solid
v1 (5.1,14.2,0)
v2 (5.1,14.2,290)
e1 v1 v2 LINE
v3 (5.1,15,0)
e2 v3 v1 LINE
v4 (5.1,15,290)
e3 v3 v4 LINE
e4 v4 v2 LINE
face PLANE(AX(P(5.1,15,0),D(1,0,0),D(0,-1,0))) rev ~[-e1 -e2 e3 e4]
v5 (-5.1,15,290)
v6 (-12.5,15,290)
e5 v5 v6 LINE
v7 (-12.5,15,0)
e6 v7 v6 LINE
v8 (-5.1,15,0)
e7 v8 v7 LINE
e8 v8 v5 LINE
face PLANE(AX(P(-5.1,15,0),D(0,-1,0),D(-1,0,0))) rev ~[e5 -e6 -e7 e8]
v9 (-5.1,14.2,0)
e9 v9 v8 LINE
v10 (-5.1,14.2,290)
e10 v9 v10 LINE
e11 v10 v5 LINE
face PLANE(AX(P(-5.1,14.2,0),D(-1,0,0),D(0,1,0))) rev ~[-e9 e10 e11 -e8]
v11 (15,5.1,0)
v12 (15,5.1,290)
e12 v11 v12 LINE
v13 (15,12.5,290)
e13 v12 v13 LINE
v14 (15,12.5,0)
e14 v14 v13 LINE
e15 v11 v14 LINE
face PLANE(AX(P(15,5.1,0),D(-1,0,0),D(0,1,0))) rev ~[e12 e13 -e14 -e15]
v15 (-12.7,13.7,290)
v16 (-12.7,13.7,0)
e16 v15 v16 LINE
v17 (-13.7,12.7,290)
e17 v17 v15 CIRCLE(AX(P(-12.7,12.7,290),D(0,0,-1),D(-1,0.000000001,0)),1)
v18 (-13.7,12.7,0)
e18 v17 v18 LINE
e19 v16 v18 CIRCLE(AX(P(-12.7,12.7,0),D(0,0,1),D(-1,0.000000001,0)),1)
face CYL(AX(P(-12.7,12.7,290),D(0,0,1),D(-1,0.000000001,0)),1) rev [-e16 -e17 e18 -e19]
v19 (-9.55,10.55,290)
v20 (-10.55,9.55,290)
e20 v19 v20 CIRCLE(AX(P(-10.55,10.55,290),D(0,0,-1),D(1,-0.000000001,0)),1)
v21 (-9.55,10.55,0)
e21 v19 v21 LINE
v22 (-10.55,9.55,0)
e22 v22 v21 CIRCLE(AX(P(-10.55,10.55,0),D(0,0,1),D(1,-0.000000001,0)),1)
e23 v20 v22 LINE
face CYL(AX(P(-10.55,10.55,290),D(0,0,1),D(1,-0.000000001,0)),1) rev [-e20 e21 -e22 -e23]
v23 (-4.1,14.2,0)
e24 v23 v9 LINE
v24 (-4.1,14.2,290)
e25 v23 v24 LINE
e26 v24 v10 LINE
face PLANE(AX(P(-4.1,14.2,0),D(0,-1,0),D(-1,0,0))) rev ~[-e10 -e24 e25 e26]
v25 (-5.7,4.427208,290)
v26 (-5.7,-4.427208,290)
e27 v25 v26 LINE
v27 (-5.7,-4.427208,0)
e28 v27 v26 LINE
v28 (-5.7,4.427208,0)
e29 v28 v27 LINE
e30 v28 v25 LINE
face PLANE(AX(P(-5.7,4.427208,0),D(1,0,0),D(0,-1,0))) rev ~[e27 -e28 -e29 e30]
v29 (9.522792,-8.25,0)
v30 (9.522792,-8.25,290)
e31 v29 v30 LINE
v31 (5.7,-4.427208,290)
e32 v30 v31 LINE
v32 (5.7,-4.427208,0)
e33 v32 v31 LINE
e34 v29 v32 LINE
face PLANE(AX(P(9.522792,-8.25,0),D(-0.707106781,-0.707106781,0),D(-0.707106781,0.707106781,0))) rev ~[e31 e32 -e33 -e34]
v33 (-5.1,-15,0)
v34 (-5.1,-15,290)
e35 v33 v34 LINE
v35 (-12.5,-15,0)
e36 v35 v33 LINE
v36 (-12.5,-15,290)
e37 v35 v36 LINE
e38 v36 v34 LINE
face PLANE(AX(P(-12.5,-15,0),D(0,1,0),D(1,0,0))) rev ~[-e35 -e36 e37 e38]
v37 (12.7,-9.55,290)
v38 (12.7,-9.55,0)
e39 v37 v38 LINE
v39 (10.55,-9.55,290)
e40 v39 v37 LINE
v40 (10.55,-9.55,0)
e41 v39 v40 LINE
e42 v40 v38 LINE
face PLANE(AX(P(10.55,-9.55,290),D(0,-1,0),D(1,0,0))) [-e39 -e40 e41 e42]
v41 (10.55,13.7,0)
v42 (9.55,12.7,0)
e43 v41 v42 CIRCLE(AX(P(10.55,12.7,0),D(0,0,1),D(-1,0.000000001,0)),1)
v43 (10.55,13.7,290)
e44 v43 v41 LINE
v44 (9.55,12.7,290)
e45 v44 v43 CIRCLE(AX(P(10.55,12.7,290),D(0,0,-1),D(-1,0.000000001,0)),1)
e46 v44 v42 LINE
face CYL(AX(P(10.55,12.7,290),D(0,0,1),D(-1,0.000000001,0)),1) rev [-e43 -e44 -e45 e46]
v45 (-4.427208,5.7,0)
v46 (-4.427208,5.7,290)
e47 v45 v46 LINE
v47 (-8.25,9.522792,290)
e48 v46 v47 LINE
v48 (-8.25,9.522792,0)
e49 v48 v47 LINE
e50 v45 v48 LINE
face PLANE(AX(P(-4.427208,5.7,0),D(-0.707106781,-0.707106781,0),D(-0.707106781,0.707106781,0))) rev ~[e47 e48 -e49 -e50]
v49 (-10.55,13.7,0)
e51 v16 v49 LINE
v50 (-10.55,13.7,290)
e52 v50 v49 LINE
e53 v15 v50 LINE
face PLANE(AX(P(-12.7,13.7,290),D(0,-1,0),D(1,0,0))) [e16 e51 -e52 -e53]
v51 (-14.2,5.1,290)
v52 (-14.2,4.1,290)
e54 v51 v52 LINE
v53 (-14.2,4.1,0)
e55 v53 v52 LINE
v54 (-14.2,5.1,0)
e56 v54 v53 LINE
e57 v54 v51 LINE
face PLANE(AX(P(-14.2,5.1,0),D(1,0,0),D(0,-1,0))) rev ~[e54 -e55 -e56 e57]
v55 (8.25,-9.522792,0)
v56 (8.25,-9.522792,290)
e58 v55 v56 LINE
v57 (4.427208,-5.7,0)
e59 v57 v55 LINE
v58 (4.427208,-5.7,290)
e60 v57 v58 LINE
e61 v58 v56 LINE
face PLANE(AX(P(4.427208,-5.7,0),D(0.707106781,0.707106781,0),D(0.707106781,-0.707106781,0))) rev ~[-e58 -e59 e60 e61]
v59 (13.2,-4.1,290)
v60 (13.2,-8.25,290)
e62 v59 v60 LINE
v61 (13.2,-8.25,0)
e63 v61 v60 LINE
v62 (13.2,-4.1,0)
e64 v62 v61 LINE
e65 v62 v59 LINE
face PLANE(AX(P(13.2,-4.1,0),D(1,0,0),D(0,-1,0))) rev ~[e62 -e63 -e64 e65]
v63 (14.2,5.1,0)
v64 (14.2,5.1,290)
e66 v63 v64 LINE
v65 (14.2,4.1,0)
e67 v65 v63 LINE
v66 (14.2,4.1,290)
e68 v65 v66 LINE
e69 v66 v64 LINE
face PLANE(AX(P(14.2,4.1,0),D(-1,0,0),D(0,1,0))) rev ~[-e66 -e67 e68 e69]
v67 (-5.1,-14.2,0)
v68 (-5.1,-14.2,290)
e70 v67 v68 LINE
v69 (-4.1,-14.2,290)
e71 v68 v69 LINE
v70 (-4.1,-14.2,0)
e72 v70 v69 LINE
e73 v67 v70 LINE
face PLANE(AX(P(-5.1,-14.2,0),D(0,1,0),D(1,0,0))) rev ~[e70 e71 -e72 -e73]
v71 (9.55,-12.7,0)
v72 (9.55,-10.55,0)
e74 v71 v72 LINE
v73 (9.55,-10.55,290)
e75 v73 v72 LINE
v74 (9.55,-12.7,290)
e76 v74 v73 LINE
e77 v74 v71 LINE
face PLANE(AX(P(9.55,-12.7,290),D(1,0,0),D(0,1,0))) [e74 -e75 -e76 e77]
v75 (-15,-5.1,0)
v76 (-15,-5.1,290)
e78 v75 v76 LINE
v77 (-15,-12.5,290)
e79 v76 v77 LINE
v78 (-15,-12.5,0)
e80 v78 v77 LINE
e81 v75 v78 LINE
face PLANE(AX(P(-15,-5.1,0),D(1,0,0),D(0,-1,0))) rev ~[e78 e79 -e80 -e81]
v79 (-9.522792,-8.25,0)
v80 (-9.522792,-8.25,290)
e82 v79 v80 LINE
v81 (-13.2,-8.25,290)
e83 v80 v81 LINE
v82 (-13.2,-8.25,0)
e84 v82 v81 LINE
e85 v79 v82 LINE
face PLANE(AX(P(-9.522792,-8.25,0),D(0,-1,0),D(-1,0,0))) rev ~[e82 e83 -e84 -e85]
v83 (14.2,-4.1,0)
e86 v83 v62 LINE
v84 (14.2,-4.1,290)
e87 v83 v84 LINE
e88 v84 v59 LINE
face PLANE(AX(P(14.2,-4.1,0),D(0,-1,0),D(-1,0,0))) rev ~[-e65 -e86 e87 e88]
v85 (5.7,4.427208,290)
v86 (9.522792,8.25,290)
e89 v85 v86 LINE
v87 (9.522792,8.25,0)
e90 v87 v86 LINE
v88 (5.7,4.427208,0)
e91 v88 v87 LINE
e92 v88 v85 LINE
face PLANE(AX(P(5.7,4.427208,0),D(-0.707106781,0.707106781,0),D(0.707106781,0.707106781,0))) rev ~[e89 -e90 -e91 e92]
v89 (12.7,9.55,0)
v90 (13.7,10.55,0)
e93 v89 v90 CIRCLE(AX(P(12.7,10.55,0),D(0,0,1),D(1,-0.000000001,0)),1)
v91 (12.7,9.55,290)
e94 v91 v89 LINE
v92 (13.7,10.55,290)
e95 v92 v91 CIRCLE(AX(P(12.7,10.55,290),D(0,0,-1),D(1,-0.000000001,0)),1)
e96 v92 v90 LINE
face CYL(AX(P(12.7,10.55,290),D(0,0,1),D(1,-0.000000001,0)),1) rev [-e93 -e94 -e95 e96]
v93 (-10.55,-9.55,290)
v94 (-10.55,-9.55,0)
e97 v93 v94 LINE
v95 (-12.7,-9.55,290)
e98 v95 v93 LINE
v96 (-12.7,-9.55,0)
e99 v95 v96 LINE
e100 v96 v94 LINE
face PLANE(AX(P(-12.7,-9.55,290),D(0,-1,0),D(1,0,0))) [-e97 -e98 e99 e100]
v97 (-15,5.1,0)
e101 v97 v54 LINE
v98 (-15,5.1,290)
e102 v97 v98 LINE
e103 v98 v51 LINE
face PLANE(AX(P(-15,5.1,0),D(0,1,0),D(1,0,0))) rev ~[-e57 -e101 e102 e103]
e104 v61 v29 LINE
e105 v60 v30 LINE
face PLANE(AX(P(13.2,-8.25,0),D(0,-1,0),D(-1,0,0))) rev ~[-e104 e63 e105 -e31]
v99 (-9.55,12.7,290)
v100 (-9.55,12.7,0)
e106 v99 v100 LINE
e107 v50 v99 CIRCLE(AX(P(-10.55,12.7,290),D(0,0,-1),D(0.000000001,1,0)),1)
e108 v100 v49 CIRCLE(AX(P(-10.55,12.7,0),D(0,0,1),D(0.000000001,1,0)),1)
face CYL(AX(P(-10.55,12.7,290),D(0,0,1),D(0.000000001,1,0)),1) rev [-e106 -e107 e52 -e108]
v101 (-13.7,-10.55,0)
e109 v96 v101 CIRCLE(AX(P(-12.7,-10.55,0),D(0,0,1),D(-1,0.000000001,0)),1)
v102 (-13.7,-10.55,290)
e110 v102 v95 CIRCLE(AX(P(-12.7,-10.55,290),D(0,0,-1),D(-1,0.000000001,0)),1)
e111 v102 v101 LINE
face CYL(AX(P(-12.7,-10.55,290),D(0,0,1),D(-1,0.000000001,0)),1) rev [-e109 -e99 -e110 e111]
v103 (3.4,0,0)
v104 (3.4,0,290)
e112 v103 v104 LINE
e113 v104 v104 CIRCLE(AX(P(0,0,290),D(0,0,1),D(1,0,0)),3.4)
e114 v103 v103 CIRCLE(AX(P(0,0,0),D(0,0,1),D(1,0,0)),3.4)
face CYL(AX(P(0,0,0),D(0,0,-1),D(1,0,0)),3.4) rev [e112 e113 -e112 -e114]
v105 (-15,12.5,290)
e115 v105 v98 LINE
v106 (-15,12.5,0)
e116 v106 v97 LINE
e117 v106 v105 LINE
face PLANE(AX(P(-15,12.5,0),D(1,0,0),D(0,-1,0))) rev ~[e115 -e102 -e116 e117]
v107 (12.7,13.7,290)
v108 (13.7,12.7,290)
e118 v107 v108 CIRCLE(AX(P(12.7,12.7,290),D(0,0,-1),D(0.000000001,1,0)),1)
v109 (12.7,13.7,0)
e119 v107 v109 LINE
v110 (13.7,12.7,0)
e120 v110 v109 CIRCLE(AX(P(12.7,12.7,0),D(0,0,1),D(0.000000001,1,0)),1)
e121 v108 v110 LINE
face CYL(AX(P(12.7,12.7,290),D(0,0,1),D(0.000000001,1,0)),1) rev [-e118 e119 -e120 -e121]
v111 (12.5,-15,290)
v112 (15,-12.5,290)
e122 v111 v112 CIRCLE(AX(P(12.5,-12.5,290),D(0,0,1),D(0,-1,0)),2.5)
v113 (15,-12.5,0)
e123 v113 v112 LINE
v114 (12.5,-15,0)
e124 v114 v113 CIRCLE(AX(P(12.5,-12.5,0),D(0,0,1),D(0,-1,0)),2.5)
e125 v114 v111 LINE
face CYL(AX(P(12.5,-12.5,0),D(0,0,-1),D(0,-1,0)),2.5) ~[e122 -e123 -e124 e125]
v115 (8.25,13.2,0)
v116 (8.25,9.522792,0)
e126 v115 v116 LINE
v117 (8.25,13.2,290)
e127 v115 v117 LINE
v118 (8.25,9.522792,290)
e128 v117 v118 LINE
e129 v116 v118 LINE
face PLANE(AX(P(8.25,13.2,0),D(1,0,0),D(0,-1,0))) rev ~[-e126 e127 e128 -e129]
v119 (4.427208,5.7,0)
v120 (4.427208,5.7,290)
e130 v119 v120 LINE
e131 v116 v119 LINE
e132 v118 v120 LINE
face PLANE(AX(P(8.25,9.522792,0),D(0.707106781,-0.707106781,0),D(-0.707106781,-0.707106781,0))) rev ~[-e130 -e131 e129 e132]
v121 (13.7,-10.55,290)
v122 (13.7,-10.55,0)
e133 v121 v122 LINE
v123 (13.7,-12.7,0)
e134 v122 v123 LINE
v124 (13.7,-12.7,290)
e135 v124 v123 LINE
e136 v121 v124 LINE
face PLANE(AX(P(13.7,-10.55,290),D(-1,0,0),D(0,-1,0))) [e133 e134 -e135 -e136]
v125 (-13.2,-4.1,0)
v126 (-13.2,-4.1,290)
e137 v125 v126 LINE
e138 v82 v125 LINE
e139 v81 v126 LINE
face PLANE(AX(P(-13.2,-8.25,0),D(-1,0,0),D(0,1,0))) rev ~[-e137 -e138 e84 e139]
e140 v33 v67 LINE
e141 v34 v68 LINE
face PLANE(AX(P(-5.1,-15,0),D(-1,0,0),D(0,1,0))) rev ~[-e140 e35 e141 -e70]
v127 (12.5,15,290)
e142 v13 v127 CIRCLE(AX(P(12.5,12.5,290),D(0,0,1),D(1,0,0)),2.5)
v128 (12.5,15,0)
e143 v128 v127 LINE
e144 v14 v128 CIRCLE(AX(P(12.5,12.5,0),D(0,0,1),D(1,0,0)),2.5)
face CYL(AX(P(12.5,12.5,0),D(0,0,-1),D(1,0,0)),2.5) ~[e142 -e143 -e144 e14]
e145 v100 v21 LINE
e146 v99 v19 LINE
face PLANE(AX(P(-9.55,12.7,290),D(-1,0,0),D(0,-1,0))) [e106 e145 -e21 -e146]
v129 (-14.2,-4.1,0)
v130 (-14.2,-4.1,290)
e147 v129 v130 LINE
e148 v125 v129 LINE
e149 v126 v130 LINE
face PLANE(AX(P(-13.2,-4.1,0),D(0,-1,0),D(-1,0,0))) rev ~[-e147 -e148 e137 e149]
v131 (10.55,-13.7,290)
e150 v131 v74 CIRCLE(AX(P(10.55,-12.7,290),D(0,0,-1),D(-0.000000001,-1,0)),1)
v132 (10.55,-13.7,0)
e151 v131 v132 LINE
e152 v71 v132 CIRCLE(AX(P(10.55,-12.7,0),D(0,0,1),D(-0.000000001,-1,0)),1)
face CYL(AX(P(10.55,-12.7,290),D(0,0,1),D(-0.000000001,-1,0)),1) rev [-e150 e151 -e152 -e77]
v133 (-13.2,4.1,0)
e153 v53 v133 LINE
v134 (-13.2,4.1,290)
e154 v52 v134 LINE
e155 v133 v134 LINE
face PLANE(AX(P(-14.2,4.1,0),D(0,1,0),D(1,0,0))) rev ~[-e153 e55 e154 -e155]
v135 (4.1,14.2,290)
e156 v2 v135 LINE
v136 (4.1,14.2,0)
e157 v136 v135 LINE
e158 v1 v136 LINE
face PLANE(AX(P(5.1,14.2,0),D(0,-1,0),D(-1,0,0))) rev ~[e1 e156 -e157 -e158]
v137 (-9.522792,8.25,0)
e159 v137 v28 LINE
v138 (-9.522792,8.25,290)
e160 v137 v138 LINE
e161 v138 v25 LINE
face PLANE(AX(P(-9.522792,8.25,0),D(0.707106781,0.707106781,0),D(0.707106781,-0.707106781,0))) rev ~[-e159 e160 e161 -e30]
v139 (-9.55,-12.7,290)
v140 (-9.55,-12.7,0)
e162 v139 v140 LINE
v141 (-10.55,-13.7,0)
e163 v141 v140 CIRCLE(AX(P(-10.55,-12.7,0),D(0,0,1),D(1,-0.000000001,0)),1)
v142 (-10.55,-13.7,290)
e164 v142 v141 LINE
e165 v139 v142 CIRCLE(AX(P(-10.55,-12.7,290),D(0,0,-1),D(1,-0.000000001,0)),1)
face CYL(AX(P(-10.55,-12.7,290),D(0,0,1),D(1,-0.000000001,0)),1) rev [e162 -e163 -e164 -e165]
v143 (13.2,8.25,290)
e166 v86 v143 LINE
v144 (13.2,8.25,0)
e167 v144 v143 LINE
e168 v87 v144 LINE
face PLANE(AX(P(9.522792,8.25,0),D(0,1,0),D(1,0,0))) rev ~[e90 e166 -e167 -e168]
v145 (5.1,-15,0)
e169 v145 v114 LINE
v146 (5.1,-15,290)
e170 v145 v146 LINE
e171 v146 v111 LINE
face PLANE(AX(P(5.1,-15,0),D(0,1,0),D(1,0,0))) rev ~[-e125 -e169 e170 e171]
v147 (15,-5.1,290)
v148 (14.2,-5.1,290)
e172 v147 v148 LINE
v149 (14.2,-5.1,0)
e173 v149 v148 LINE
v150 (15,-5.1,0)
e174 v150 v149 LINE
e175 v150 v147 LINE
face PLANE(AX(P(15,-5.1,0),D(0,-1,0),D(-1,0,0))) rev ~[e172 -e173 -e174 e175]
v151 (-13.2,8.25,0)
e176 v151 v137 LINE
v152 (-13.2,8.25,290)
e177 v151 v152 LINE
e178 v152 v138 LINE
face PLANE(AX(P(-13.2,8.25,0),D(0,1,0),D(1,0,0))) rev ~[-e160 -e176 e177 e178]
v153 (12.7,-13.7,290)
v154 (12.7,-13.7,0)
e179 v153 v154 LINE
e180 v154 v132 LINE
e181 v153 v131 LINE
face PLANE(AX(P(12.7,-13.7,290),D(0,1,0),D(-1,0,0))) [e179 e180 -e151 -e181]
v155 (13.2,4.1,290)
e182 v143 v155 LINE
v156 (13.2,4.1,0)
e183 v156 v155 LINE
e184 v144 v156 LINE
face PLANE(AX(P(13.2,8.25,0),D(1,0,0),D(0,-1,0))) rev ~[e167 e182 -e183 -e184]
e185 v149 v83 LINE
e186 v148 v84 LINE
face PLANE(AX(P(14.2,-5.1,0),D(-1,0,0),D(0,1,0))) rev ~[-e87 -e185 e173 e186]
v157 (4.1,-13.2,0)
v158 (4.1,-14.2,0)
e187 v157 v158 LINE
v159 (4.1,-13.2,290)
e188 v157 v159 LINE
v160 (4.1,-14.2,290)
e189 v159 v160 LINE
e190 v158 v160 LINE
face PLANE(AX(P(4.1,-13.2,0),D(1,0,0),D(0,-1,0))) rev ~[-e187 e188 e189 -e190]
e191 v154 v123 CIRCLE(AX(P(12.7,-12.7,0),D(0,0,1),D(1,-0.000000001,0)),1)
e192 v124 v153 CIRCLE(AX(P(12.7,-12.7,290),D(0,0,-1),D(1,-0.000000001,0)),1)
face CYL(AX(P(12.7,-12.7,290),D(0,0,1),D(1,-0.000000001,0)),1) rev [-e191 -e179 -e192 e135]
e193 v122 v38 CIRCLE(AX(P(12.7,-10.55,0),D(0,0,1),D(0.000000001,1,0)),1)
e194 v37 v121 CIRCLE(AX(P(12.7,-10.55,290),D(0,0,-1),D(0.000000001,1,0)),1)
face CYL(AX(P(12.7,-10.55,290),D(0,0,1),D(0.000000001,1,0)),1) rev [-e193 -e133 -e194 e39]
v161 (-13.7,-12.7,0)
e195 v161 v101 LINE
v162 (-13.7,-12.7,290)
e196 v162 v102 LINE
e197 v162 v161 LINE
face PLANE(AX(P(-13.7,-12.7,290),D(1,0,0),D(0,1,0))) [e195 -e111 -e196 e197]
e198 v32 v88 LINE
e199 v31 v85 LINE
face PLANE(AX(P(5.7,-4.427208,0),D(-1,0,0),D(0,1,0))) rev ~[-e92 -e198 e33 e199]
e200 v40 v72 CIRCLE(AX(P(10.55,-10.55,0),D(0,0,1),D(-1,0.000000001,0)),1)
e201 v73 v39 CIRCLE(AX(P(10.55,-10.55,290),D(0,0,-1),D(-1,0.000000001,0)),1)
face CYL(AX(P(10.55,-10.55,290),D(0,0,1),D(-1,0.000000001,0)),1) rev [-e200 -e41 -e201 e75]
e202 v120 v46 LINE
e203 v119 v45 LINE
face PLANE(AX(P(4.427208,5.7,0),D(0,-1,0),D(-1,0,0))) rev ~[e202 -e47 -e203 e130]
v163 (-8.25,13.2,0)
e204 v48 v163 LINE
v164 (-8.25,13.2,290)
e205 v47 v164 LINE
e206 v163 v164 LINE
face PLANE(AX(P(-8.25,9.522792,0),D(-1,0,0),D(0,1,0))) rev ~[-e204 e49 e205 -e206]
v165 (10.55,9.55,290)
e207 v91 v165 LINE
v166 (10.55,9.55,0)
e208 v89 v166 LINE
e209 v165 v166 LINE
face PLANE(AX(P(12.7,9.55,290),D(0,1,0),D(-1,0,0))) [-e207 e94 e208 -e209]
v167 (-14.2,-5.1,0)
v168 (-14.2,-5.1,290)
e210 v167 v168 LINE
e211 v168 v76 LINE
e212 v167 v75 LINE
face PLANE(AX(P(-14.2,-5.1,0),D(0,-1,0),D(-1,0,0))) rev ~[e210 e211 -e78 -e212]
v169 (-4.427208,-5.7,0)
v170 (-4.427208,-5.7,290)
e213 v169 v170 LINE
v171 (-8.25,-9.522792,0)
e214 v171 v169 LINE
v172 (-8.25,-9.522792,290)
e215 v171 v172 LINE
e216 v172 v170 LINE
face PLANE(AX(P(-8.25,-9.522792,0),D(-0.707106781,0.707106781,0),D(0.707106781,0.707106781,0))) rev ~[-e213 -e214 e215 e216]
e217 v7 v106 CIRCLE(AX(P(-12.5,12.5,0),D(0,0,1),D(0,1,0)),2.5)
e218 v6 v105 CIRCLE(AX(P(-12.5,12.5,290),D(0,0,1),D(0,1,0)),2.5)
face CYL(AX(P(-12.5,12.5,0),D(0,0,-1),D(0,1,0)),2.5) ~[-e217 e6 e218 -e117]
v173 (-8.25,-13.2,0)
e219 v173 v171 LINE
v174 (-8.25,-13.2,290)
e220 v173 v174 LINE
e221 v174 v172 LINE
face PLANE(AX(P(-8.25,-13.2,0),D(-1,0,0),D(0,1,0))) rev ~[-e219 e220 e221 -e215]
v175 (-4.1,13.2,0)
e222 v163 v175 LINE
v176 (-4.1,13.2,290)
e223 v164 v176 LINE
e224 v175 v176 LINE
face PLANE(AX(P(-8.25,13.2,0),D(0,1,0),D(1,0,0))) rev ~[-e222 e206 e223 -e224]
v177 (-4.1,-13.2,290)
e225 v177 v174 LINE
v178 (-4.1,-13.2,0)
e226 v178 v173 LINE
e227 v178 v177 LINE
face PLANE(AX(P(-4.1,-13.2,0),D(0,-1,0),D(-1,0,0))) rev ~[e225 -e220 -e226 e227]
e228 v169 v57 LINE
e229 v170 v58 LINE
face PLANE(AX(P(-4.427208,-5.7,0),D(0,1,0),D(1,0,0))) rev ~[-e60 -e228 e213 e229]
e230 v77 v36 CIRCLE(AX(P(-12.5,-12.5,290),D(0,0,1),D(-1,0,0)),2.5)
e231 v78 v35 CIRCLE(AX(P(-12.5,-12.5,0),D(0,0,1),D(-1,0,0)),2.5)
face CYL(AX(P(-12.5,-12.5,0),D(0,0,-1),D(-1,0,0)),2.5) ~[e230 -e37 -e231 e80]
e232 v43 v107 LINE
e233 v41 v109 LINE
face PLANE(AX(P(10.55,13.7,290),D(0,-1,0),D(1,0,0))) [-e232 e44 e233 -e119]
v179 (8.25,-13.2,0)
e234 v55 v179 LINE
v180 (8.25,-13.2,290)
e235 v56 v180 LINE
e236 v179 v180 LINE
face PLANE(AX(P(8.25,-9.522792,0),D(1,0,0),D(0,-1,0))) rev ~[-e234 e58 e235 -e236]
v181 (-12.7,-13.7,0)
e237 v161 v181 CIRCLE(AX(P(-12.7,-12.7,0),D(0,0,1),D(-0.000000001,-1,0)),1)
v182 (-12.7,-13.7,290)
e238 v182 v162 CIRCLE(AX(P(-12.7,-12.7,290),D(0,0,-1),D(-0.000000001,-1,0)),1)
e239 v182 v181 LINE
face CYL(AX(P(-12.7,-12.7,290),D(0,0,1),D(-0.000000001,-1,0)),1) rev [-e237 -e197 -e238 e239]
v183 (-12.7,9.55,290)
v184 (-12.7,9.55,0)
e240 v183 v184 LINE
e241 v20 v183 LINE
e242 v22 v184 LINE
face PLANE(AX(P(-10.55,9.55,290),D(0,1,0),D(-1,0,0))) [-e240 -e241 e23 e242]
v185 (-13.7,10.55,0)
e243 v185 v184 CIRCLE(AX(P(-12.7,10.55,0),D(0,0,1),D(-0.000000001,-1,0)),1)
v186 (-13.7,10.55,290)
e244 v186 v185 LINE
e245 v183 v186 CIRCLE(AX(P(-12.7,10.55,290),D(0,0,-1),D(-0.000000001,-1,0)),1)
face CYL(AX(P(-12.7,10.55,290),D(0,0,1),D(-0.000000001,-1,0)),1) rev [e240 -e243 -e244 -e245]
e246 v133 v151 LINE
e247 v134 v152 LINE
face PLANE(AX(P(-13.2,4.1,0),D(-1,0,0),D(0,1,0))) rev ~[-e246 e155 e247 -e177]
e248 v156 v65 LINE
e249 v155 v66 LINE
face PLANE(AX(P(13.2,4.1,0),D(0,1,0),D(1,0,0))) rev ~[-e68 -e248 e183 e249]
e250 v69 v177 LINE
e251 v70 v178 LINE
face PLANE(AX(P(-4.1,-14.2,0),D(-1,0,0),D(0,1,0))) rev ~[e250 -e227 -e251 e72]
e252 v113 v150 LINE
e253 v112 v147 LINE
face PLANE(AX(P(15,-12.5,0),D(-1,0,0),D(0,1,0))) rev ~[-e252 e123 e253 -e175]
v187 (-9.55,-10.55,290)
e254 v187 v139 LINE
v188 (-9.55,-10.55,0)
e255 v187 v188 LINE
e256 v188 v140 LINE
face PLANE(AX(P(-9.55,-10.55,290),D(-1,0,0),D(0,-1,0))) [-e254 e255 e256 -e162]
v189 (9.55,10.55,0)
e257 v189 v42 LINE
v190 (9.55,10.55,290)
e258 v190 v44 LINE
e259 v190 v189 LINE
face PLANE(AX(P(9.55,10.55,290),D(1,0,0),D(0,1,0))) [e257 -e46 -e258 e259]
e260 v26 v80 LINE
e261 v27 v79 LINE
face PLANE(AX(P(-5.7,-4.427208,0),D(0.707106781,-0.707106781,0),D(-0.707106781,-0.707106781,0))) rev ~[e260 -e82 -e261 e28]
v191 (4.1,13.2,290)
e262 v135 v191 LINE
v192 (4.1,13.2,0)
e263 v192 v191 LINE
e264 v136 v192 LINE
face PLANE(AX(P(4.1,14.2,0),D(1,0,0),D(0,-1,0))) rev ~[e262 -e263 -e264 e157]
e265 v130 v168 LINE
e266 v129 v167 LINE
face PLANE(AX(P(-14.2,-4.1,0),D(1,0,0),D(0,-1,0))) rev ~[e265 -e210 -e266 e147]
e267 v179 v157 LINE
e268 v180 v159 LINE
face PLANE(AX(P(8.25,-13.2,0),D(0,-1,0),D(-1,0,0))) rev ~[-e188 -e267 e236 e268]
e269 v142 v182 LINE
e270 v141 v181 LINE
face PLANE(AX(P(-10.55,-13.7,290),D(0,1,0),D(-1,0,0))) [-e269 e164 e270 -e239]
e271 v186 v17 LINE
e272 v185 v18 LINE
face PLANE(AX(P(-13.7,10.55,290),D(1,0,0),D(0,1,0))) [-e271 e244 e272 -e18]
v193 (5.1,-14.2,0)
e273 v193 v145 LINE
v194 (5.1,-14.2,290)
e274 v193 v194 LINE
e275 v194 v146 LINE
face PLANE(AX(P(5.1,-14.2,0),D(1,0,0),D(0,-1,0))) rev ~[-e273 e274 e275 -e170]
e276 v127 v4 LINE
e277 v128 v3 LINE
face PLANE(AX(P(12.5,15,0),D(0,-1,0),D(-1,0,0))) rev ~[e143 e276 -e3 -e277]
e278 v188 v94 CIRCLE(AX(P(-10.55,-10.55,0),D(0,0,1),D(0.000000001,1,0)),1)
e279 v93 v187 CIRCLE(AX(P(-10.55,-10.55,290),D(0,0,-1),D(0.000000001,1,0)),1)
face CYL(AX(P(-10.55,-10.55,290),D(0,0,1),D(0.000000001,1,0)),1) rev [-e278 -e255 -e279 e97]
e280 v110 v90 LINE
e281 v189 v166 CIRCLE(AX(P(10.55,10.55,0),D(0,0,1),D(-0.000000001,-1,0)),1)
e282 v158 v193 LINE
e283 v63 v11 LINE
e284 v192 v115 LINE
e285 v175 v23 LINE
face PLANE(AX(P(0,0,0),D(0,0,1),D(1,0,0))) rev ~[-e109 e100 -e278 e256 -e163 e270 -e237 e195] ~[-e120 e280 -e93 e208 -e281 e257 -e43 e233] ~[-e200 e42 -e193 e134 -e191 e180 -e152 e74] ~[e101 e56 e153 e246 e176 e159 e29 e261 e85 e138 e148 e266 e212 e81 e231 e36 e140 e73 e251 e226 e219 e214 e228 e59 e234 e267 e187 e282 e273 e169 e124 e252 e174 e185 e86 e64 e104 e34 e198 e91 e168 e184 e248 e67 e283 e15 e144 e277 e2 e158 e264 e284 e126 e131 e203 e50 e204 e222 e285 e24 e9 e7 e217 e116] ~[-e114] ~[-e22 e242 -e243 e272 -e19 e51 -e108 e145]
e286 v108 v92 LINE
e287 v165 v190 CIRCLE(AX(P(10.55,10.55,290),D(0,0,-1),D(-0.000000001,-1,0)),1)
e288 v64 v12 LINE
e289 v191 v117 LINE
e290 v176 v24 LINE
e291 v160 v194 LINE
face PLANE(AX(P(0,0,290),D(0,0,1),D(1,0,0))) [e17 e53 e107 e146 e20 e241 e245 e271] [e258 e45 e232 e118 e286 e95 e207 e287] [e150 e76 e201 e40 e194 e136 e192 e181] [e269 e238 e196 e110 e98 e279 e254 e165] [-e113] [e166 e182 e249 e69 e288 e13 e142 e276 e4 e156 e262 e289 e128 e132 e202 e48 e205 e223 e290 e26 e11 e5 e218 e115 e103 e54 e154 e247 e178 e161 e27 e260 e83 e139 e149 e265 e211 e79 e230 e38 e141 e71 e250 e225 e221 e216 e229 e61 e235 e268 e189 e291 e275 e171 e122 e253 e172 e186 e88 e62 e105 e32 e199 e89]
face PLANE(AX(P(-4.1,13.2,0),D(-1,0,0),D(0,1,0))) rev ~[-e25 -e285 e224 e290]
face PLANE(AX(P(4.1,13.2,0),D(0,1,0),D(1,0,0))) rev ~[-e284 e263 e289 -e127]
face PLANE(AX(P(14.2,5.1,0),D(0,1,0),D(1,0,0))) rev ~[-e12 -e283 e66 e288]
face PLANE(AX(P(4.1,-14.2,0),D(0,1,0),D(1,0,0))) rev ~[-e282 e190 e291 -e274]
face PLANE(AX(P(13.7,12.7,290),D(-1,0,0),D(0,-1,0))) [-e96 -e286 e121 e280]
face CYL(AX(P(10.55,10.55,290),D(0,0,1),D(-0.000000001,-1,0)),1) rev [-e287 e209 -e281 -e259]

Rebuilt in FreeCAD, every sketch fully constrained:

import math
import FreeCAD as App
import Part
import Sketcher
from FreeCAD import Vector

doc = App.newDocument("Part")
params = doc.addObject("Spreadsheet::Sheet", "Params")
for row, (alias, value) in enumerate([
    ("sketch1_diameter", "6.8 mm"),
    ("sketch1_radius", "2.5 mm"),
    ("sketch1_width", "1 mm"),
    ("sketch1_width2", "7.4 mm"),
    ("sketch1_width3", "0.8 mm"),
    ("pad1_length", "290 mm"),
    ("sketch2_radius", "1 mm"),
    ("sketch2_width", "2.15 mm"),
], start=1):
    params.set(f"A{row}", alias)
    params.set(f"B{row}", "=" + value)
    params.setAlias(f"B{row}", alias)

body = doc.addObject("PartDesign::Body", "Body")

sketch1 = doc.addObject("Sketcher::SketchObject", "Sketch")
body.addObject(sketch1)
sketch1.AttachmentSupport = (doc.XY_Plane, [""])
sketch1.MapMode = "FlatFace"
sketch1.addGeometry(Part.LineSegment(Vector(-5.1, 14.2, 0), Vector(-5.1, 15, 0)), False)
sketch1.addGeometry(Part.LineSegment(Vector(-5.1, 15, 0), Vector(-12.5, 15, 0)), False)
sketch1.addGeometry(Part.ArcOfCircle(Part.Circle(Vector(-12.5, 12.5, 0), Vector(0, 0, 1), 2.5), math.radians(90), math.radians(180)), False)
sketch1.addGeometry(Part.LineSegment(Vector(-15, 12.5, 0), Vector(-15, 5.1, 0)), False)
sketch1.addGeometry(Part.LineSegment(Vector(-15, 5.1, 0), Vector(-14.2, 5.1, 0)), False)
sketch1.addGeometry(Part.LineSegment(Vector(-14.2, 5.1, 0), Vector(-14.2, 4.1, 0)), False)
sketch1.addGeometry(Part.LineSegment(Vector(-14.2, 4.1, 0), Vector(-13.2, 4.1, 0)), False)
sketch1.addGeometry(Part.LineSegment(Vector(-13.2, 4.1, 0), Vector(-13.2, 8.2, 0)), False)
sketch1.addGeometry(Part.LineSegment(Vector(-13.2, 8.2, 0), Vector(-9.5, 8.2, 0)), False)
sketch1.addGeometry(Part.LineSegment(Vector(-9.5, 8.2, 0), Vector(-5.7, 4.4, 0)), False)
sketch1.addGeometry(Part.LineSegment(Vector(-5.7, 4.4, 0), Vector(-5.7, -4.4, 0)), False)
sketch1.addGeometry(Part.LineSegment(Vector(-5.7, -4.4, 0), Vector(-9.5, -8.2, 0)), False)
sketch1.addGeometry(Part.LineSegment(Vector(-9.5, -8.2, 0), Vector(-13.2, -8.2, 0)), False)
sketch1.addGeometry(Part.LineSegment(Vector(-13.2, -8.2, 0), Vector(-13.2, -4.1, 0)), False)
sketch1.addGeometry(Part.LineSegment(Vector(-13.2, -4.1, 0), Vector(-14.2, -4.1, 0)), False)
sketch1.addGeometry(Part.LineSegment(Vector(-14.2, -4.1, 0), Vector(-14.2, -5.1, 0)), False)
sketch1.addGeometry(Part.LineSegment(Vector(-14.2, -5.1, 0), Vector(-15, -5.1, 0)), False)
sketch1.addGeometry(Part.LineSegment(Vector(-15, -5.1, 0), Vector(-15, -12.5, 0)), False)
sketch1.addGeometry(Part.ArcOfCircle(Part.Circle(Vector(-12.5, -12.5, 0), Vector(0, 0, 1), 2.5), math.radians(180), math.radians(270)), False)
sketch1.addGeometry(Part.LineSegment(Vector(-12.5, -15, 0), Vector(-5.1, -15, 0)), False)
sketch1.addGeometry(Part.LineSegment(Vector(-5.1, -15, 0), Vector(-5.1, -14.2, 0)), False)
sketch1.addGeometry(Part.LineSegment(Vector(-5.1, -14.2, 0), Vector(-4.1, -14.2, 0)), False)
sketch1.addGeometry(Part.LineSegment(Vector(-4.1, -14.2, 0), Vector(-4.1, -13.2, 0)), False)
sketch1.addGeometry(Part.LineSegment(Vector(-4.1, -13.2, 0), Vector(-8.2, -13.2, 0)), False)
sketch1.addGeometry(Part.LineSegment(Vector(-8.2, -13.2, 0), Vector(-8.2, -9.5, 0)), False)
sketch1.addGeometry(Part.LineSegment(Vector(-8.2, -9.5, 0), Vector(-4.4, -5.7, 0)), False)
sketch1.addGeometry(Part.LineSegment(Vector(-4.4, -5.7, 0), Vector(4.4, -5.7, 0)), False)
sketch1.addGeometry(Part.LineSegment(Vector(4.4, -5.7, 0), Vector(8.2, -9.5, 0)), False)
sketch1.addGeometry(Part.LineSegment(Vector(8.2, -9.5, 0), Vector(8.2, -13.2, 0)), False)
sketch1.addGeometry(Part.LineSegment(Vector(8.2, -13.2, 0), Vector(4.1, -13.2, 0)), False)
sketch1.addGeometry(Part.LineSegment(Vector(4.1, -13.2, 0), Vector(4.1, -14.2, 0)), False)
sketch1.addGeometry(Part.LineSegment(Vector(4.1, -14.2, 0), Vector(5.1, -14.2, 0)), False)
sketch1.addGeometry(Part.LineSegment(Vector(5.1, -14.2, 0), Vector(5.1, -15, 0)), False)
sketch1.addGeometry(Part.LineSegment(Vector(5.1, -15, 0), Vector(12.5, -15, 0)), False)
sketch1.addGeometry(Part.ArcOfCircle(Part.Circle(Vector(12.5, -12.5, 0), Vector(0, 0, 1), 2.5), math.radians(-90), math.radians(0)), False)
sketch1.addGeometry(Part.LineSegment(Vector(15, -12.5, 0), Vector(15, -5.1, 0)), False)
sketch1.addGeometry(Part.LineSegment(Vector(15, -5.1, 0), Vector(14.2, -5.1, 0)), False)
sketch1.addGeometry(Part.LineSegment(Vector(14.2, -5.1, 0), Vector(14.2, -4.1, 0)), False)
sketch1.addGeometry(Part.LineSegment(Vector(14.2, -4.1, 0), Vector(13.2, -4.1, 0)), False)
sketch1.addGeometry(Part.LineSegment(Vector(13.2, -4.1, 0), Vector(13.2, -8.2, 0)), False)
sketch1.addGeometry(Part.LineSegment(Vector(13.2, -8.2, 0), Vector(9.5, -8.2, 0)), False)
sketch1.addGeometry(Part.LineSegment(Vector(9.5, -8.2, 0), Vector(5.7, -4.4, 0)), False)
sketch1.addGeometry(Part.LineSegment(Vector(5.7, -4.4, 0), Vector(5.7, 4.4, 0)), False)
sketch1.addGeometry(Part.LineSegment(Vector(5.7, 4.4, 0), Vector(9.5, 8.2, 0)), False)
sketch1.addGeometry(Part.LineSegment(Vector(9.5, 8.2, 0), Vector(13.2, 8.2, 0)), False)
sketch1.addGeometry(Part.LineSegment(Vector(13.2, 8.2, 0), Vector(13.2, 4.1, 0)), False)
sketch1.addGeometry(Part.LineSegment(Vector(13.2, 4.1, 0), Vector(14.2, 4.1, 0)), False)
sketch1.addGeometry(Part.LineSegment(Vector(14.2, 4.1, 0), Vector(14.2, 5.1, 0)), False)
sketch1.addGeometry(Part.LineSegment(Vector(14.2, 5.1, 0), Vector(15, 5.1, 0)), False)
sketch1.addGeometry(Part.LineSegment(Vector(15, 5.1, 0), Vector(15, 12.5, 0)), False)
sketch1.addGeometry(Part.ArcOfCircle(Part.Circle(Vector(12.5, 12.5, 0), Vector(0, 0, 1), 2.5), math.radians(0), math.radians(90)), False)
sketch1.addGeometry(Part.LineSegment(Vector(12.5, 15, 0), Vector(5.1, 15, 0)), False)
sketch1.addGeometry(Part.LineSegment(Vector(5.1, 15, 0), Vector(5.1, 14.2, 0)), False)
sketch1.addGeometry(Part.LineSegment(Vector(5.1, 14.2, 0), Vector(4.1, 14.2, 0)), False)
sketch1.addGeometry(Part.LineSegment(Vector(4.1, 14.2, 0), Vector(4.1, 13.2, 0)), False)
sketch1.addGeometry(Part.LineSegment(Vector(4.1, 13.2, 0), Vector(8.2, 13.2, 0)), False)
sketch1.addGeometry(Part.LineSegment(Vector(8.2, 13.2, 0), Vector(8.2, 9.5, 0)), False)
sketch1.addGeometry(Part.LineSegment(Vector(8.2, 9.5, 0), Vector(4.4, 5.7, 0)), False)
sketch1.addGeometry(Part.LineSegment(Vector(4.4, 5.7, 0), Vector(-4.4, 5.7, 0)), False)
sketch1.addGeometry(Part.LineSegment(Vector(-4.4, 5.7, 0), Vector(-8.2, 9.5, 0)), False)
sketch1.addGeometry(Part.LineSegment(Vector(-8.2, 9.5, 0), Vector(-8.2, 13.2, 0)), False)
sketch1.addGeometry(Part.LineSegment(Vector(-8.2, 13.2, 0), Vector(-4.1, 13.2, 0)), False)
sketch1.addGeometry(Part.LineSegment(Vector(-4.1, 13.2, 0), Vector(-4.1, 14.2, 0)), False)
sketch1.addGeometry(Part.LineSegment(Vector(-4.1, 14.2, 0), Vector(-5.1, 14.2, 0)), False)
sketch1.addGeometry(Part.Circle(Vector(0, 0, 0), Vector(0, 0, 1), 3.4), False)
sketch1.addConstraint(Sketcher.Constraint("Coincident", 0, 2, 1, 1))
sketch1.addConstraint(Sketcher.Constraint("Tangent", 1, 2, 2, 1))
sketch1.addConstraint(Sketcher.Constraint("Tangent", 2, 2, 3, 1))
sketch1.addConstraint(Sketcher.Constraint("Coincident", 3, 2, 4, 1))
sketch1.addConstraint(Sketcher.Constraint("Coincident", 4, 2, 5, 1))
sketch1.addConstraint(Sketcher.Constraint("Coincident", 5, 2, 6, 1))
sketch1.addConstraint(Sketcher.Constraint("Coincident", 6, 2, 7, 1))
sketch1.addConstraint(Sketcher.Constraint("Coincident", 7, 2, 8, 1))
sketch1.addConstraint(Sketcher.Constraint("Coincident", 8, 2, 9, 1))
sketch1.addConstraint(Sketcher.Constraint("Coincident", 9, 2, 10, 1))
sketch1.addConstraint(Sketcher.Constraint("Coincident", 10, 2, 11, 1))
sketch1.addConstraint(Sketcher.Constraint("Coincident", 11, 2, 12, 1))
sketch1.addConstraint(Sketcher.Constraint("Coincident", 12, 2, 13, 1))
sketch1.addConstraint(Sketcher.Constraint("Coincident", 13, 2, 14, 1))
sketch1.addConstraint(Sketcher.Constraint("Coincident", 14, 2, 15, 1))
sketch1.addConstraint(Sketcher.Constraint("Coincident", 15, 2, 16, 1))
sketch1.addConstraint(Sketcher.Constraint("Coincident", 16, 2, 17, 1))
sketch1.addConstraint(Sketcher.Constraint("Tangent", 17, 2, 18, 1))
sketch1.addConstraint(Sketcher.Constraint("Tangent", 18, 2, 19, 1))
sketch1.addConstraint(Sketcher.Constraint("Coincident", 19, 2, 20, 1))
sketch1.addConstraint(Sketcher.Constraint("Coincident", 20, 2, 21, 1))
sketch1.addConstraint(Sketcher.Constraint("Coincident", 21, 2, 22, 1))
sketch1.addConstraint(Sketcher.Constraint("Coincident", 22, 2, 23, 1))
sketch1.addConstraint(Sketcher.Constraint("Coincident", 23, 2, 24, 1))
sketch1.addConstraint(Sketcher.Constraint("Coincident", 24, 2, 25, 1))
sketch1.addConstraint(Sketcher.Constraint("Coincident", 25, 2, 26, 1))
sketch1.addConstraint(Sketcher.Constraint("Coincident", 26, 2, 27, 1))
sketch1.addConstraint(Sketcher.Constraint("Coincident", 27, 2, 28, 1))
sketch1.addConstraint(Sketcher.Constraint("Coincident", 28, 2, 29, 1))
sketch1.addConstraint(Sketcher.Constraint("Coincident", 29, 2, 30, 1))
sketch1.addConstraint(Sketcher.Constraint("Coincident", 30, 2, 31, 1))
sketch1.addConstraint(Sketcher.Constraint("Coincident", 31, 2, 32, 1))
sketch1.addConstraint(Sketcher.Constraint("Coincident", 32, 2, 33, 1))
sketch1.addConstraint(Sketcher.Constraint("Tangent", 33, 2, 34, 1))
sketch1.addConstraint(Sketcher.Constraint("Tangent", 34, 2, 35, 1))
sketch1.addConstraint(Sketcher.Constraint("Coincident", 35, 2, 36, 1))
sketch1.addConstraint(Sketcher.Constraint("Coincident", 36, 2, 37, 1))
sketch1.addConstraint(Sketcher.Constraint("Coincident", 37, 2, 38, 1))
sketch1.addConstraint(Sketcher.Constraint("Coincident", 38, 2, 39, 1))
sketch1.addConstraint(Sketcher.Constraint("Coincident", 39, 2, 40, 1))
sketch1.addConstraint(Sketcher.Constraint("Coincident", 40, 2, 41, 1))
sketch1.addConstraint(Sketcher.Constraint("Coincident", 41, 2, 42, 1))
sketch1.addConstraint(Sketcher.Constraint("Coincident", 42, 2, 43, 1))
sketch1.addConstraint(Sketcher.Constraint("Coincident", 43, 2, 44, 1))
sketch1.addConstraint(Sketcher.Constraint("Coincident", 44, 2, 45, 1))
sketch1.addConstraint(Sketcher.Constraint("Coincident", 45, 2, 46, 1))
sketch1.addConstraint(Sketcher.Constraint("Coincident", 46, 2, 47, 1))
sketch1.addConstraint(Sketcher.Constraint("Coincident", 47, 2, 48, 1))
sketch1.addConstraint(Sketcher.Constraint("Coincident", 48, 2, 49, 1))
sketch1.addConstraint(Sketcher.Constraint("Tangent", 49, 2, 50, 1))
sketch1.addConstraint(Sketcher.Constraint("Tangent", 50, 2, 51, 1))
sketch1.addConstraint(Sketcher.Constraint("Coincident", 51, 2, 52, 1))
sketch1.addConstraint(Sketcher.Constraint("Coincident", 52, 2, 53, 1))
sketch1.addConstraint(Sketcher.Constraint("Coincident", 53, 2, 54, 1))
sketch1.addConstraint(Sketcher.Constraint("Coincident", 54, 2, 55, 1))
sketch1.addConstraint(Sketcher.Constraint("Coincident", 55, 2, 56, 1))
sketch1.addConstraint(Sketcher.Constraint("Coincident", 56, 2, 57, 1))
sketch1.addConstraint(Sketcher.Constraint("Coincident", 57, 2, 58, 1))
sketch1.addConstraint(Sketcher.Constraint("Coincident", 58, 2, 59, 1))
sketch1.addConstraint(Sketcher.Constraint("Coincident", 59, 2, 60, 1))
sketch1.addConstraint(Sketcher.Constraint("Coincident", 60, 2, 61, 1))
sketch1.addConstraint(Sketcher.Constraint("Coincident", 61, 2, 62, 1))
sketch1.addConstraint(Sketcher.Constraint("Coincident", 62, 2, 63, 1))
sketch1.addConstraint(Sketcher.Constraint("Coincident", 63, 2, 0, 1))
sketch1.addConstraint(Sketcher.Constraint("Vertical", 0))
sketch1.addConstraint(Sketcher.Constraint("Horizontal", 1))
sketch1.addConstraint(Sketcher.Constraint("Vertical", 3))
sketch1.addConstraint(Sketcher.Constraint("Horizontal", 4))
sketch1.addConstraint(Sketcher.Constraint("Vertical", 5))
sketch1.addConstraint(Sketcher.Constraint("Horizontal", 6))
sketch1.addConstraint(Sketcher.Constraint("Vertical", 7))
sketch1.addConstraint(Sketcher.Constraint("Horizontal", 8))
sketch1.addConstraint(Sketcher.Constraint("Vertical", 10))
sketch1.addConstraint(Sketcher.Constraint("Horizontal", 12))
sketch1.addConstraint(Sketcher.Constraint("Vertical", 13))
sketch1.addConstraint(Sketcher.Constraint("Horizontal", 14))
sketch1.addConstraint(Sketcher.Constraint("Vertical", 15))
sketch1.addConstraint(Sketcher.Constraint("Horizontal", 16))
sketch1.addConstraint(Sketcher.Constraint("Vertical", 17))
sketch1.addConstraint(Sketcher.Constraint("Horizontal", 19))
sketch1.addConstraint(Sketcher.Constraint("Vertical", 20))
sketch1.addConstraint(Sketcher.Constraint("Horizontal", 21))
sketch1.addConstraint(Sketcher.Constraint("Vertical", 22))
sketch1.addConstraint(Sketcher.Constraint("Horizontal", 23))
sketch1.addConstraint(Sketcher.Constraint("Vertical", 24))
sketch1.addConstraint(Sketcher.Constraint("Horizontal", 26))
sketch1.addConstraint(Sketcher.Constraint("Vertical", 28))
sketch1.addConstraint(Sketcher.Constraint("Horizontal", 29))
sketch1.addConstraint(Sketcher.Constraint("Vertical", 30))
sketch1.addConstraint(Sketcher.Constraint("Horizontal", 31))
sketch1.addConstraint(Sketcher.Constraint("Vertical", 32))
sketch1.addConstraint(Sketcher.Constraint("Horizontal", 33))
sketch1.addConstraint(Sketcher.Constraint("Vertical", 35))
sketch1.addConstraint(Sketcher.Constraint("Horizontal", 36))
sketch1.addConstraint(Sketcher.Constraint("Vertical", 37))
sketch1.addConstraint(Sketcher.Constraint("Horizontal", 38))
sketch1.addConstraint(Sketcher.Constraint("Vertical", 39))
sketch1.addConstraint(Sketcher.Constraint("Horizontal", 40))
sketch1.addConstraint(Sketcher.Constraint("Vertical", 42))
sketch1.addConstraint(Sketcher.Constraint("Horizontal", 44))
sketch1.addConstraint(Sketcher.Constraint("Vertical", 45))
sketch1.addConstraint(Sketcher.Constraint("Horizontal", 46))
sketch1.addConstraint(Sketcher.Constraint("Vertical", 47))
sketch1.addConstraint(Sketcher.Constraint("Horizontal", 48))
sketch1.addConstraint(Sketcher.Constraint("Vertical", 49))
sketch1.addConstraint(Sketcher.Constraint("Horizontal", 51))
sketch1.addConstraint(Sketcher.Constraint("Vertical", 52))
sketch1.addConstraint(Sketcher.Constraint("Horizontal", 53))
sketch1.addConstraint(Sketcher.Constraint("Vertical", 54))
sketch1.addConstraint(Sketcher.Constraint("Horizontal", 55))
sketch1.addConstraint(Sketcher.Constraint("Vertical", 56))
sketch1.addConstraint(Sketcher.Constraint("Horizontal", 58))
sketch1.addConstraint(Sketcher.Constraint("Vertical", 60))
sketch1.addConstraint(Sketcher.Constraint("Horizontal", 61))
sketch1.addConstraint(Sketcher.Constraint("Vertical", 62))
sketch1.addConstraint(Sketcher.Constraint("Horizontal", 63))
sketch1.addConstraint(Sketcher.Constraint("Coincident", 64, 3, -1, 1))
sketch1.addConstraint(Sketcher.Constraint("Equal", 2, 18))
sketch1.addConstraint(Sketcher.Constraint("Equal", 18, 34))
sketch1.addConstraint(Sketcher.Constraint("Equal", 34, 50))
sketch1.addConstraint(Sketcher.Constraint("Symmetric", 2, 3, 34, 3, -1, 1))
sketch1.addConstraint(Sketcher.Constraint("Symmetric", 18, 3, 50, 3, -1, 1))
sketch1.addConstraint(Sketcher.Constraint("Symmetric", 4, 2, 36, 2, -1, 1))
sketch1.addConstraint(Sketcher.Constraint("Symmetric", 6, 2, 38, 2, -1, 1))
sketch1.addConstraint(Sketcher.Constraint("Symmetric", 8, 2, 40, 2, -1, 1))
sketch1.addConstraint(Sketcher.Constraint("Symmetric", 9, 2, 41, 2, -1, 1))
sketch1.addConstraint(Sketcher.Constraint("Symmetric", 11, 2, 43, 2, -1, 1))
sketch1.addConstraint(Sketcher.Constraint("Symmetric", 13, 2, 45, 2, -1, 1))
sketch1.addConstraint(Sketcher.Constraint("Symmetric", 15, 2, 47, 2, -1, 1))
sketch1.addConstraint(Sketcher.Constraint("Symmetric", 20, 2, 52, 2, -1, 1))
sketch1.addConstraint(Sketcher.Constraint("Symmetric", 22, 2, 54, 2, -1, 1))
sketch1.addConstraint(Sketcher.Constraint("Symmetric", 24, 2, 56, 2, -1, 1))
sketch1.addConstraint(Sketcher.Constraint("Symmetric", 25, 2, 57, 2, -1, 1))
sketch1.addConstraint(Sketcher.Constraint("Symmetric", 27, 2, 59, 2, -1, 1))
sketch1.addConstraint(Sketcher.Constraint("Symmetric", 29, 2, 61, 2, -1, 1))
sketch1.addConstraint(Sketcher.Constraint("Symmetric", 31, 2, 63, 2, -1, 1))
sketch1.addConstraint(Sketcher.Constraint("Symmetric", 18, 3, 34, 3, -2))
sketch1.addConstraint(Sketcher.Constraint("Symmetric", 24, 2, 27, 2, -2))
sketch1.addConstraint(Sketcher.Constraint("Symmetric", 22, 2, 29, 2, -2))
sketch1.addConstraint(Sketcher.Constraint("Symmetric", 20, 2, 31, 2, -2))
sketch1.addConstraint(Sketcher.Constraint("Symmetric", 15, 2, 36, 2, -2))
sketch1.addConstraint(Sketcher.Constraint("Symmetric", 13, 2, 38, 2, -2))
sketch1.addConstraint(Sketcher.Constraint("Symmetric", 11, 2, 40, 2, -2))
sketch1.addConstraint(Sketcher.Constraint("Perpendicular", 9, 11))
sketch1.addConstraint(Sketcher.Constraint("Parallel", 11, 25))
sketch1.addConstraint(Sketcher.Constraint("Perpendicular", 25, 27))
sketch1.addConstraint(Sketcher.Constraint("Perpendicular", 41, 43))
sketch1.addConstraint(Sketcher.Constraint("Perpendicular", 57, 59))
sketch1.addConstraint(Sketcher.Constraint("Horizontal", 10, 2, 41, 2))
sketch1.addConstraint(Sketcher.Constraint("Equal", 14, 21))
sketch1.addConstraint(Sketcher.Constraint("Equal", 48, 0))
sketch1.addConstraint(Sketcher.Constraint("Equal", 51, 3))
sketch1.addConstraint(Sketcher.Constraint("Equal", 63, 5))
sketch1.addConstraint(Sketcher.Constraint("Equal", 61, 7))
sketch1.addConstraint(Sketcher.Constraint("Equal", 58, 10))
sketch1.addConstraint(Sketcher.Constraint("Equal", 15, 22))
sketch1.addConstraint(Sketcher.Constraint("Equal", 44, 24))
sketch1.addConstraint(Sketcher.Constraint("Equal", 11, 25))
sketch1.addConstraint(Sketcher.Constraint("Diameter", 64, 6.8))
sketch1.addConstraint(Sketcher.Constraint("Radius", 2, 2.5))
sketch1.addConstraint(Sketcher.Constraint("DistanceX", 6, 1, 6, 2, 1.0))
sketch1.addConstraint(Sketcher.Constraint("DistanceX", 1, 2, 1, 1, 7.4))
sketch1.addConstraint(Sketcher.Constraint("DistanceX", 4, 1, 4, 2, 0.8))
sketch1.addConstraint(Sketcher.Constraint("DistanceY", -1, 1, 0, 2, 15.0))
sketch1.addConstraint(Sketcher.Constraint("DistanceX", 23, 2, 23, 1, 4.15))
sketch1.addConstraint(Sketcher.Constraint("DistanceX", 9, 2, -1, 1, 5.7))
sketch1.addConstraint(Sketcher.Constraint("DistanceX", 8, 1, 8, 2, 3.677208))
sketch1.setExpression("Constraints[158]", "Params.sketch1_diameter")
sketch1.setExpression("Constraints[159]", "Params.sketch1_radius")
sketch1.setExpression("Constraints[160]", "Params.sketch1_width")
sketch1.setExpression("Constraints[161]", "Params.sketch1_width2")
sketch1.setExpression("Constraints[162]", "Params.sketch1_width3")
pad1 = doc.addObject("PartDesign::Pad", "Pad")
body.addObject(pad1)
pad1.Profile = sketch1
pad1.setExpression("Length", "Params.pad1_length")

sketch2 = doc.addObject("Sketcher::SketchObject", "Sketch001")
body.addObject(sketch2)
sketch2.AttachmentSupport = (doc.XY_Plane, [""])
sketch2.MapMode = "FlatFace"
sketch2.AttachmentOffset = App.Placement(Vector(0, 0, 290), App.Rotation())
sketch2.addGeometry(Part.LineSegment(Vector(13.7, 10.6, 0), Vector(13.7, 12.7, 0)), False)
sketch2.addGeometry(Part.ArcOfCircle(Part.Circle(Vector(12.7, 12.7, 0), Vector(0, 0, 1), 1), math.radians(0), math.radians(90)), False)
sketch2.addGeometry(Part.LineSegment(Vector(12.7, 13.7, 0), Vector(10.6, 13.7, 0)), False)
sketch2.addGeometry(Part.ArcOfCircle(Part.Circle(Vector(10.6, 12.7, 0), Vector(0, 0, 1), 1), math.radians(90), math.radians(180)), False)
sketch2.addGeometry(Part.LineSegment(Vector(9.6, 12.7, 0), Vector(9.6, 10.6, 0)), False)
sketch2.addGeometry(Part.ArcOfCircle(Part.Circle(Vector(10.6, 10.6, 0), Vector(0, 0, 1), 1), math.radians(-180), math.radians(-90)), False)
sketch2.addGeometry(Part.LineSegment(Vector(10.6, 9.6, 0), Vector(12.7, 9.6, 0)), False)
sketch2.addGeometry(Part.ArcOfCircle(Part.Circle(Vector(12.7, 10.6, 0), Vector(0, 0, 1), 1), math.radians(-90), math.radians(0)), False)
sketch2.addGeometry(Part.LineSegment(Vector(-10.6, 13.7, 0), Vector(-12.7, 13.7, 0)), False)
sketch2.addGeometry(Part.ArcOfCircle(Part.Circle(Vector(-12.7, 12.7, 0), Vector(0, 0, 1), 1), math.radians(90), math.radians(180)), False)
sketch2.addGeometry(Part.LineSegment(Vector(-13.7, 12.7, 0), Vector(-13.7, 10.6, 0)), False)
sketch2.addGeometry(Part.ArcOfCircle(Part.Circle(Vector(-12.7, 10.6, 0), Vector(0, 0, 1), 1), math.radians(-180), math.radians(-90)), False)
sketch2.addGeometry(Part.LineSegment(Vector(-12.7, 9.6, 0), Vector(-10.6, 9.6, 0)), False)
sketch2.addGeometry(Part.ArcOfCircle(Part.Circle(Vector(-10.6, 10.6, 0), Vector(0, 0, 1), 1), math.radians(-90), math.radians(0)), False)
sketch2.addGeometry(Part.LineSegment(Vector(-9.6, 10.6, 0), Vector(-9.6, 12.7, 0)), False)
sketch2.addGeometry(Part.ArcOfCircle(Part.Circle(Vector(-10.6, 12.7, 0), Vector(0, 0, 1), 1), math.radians(0), math.radians(90)), False)
sketch2.addGeometry(Part.LineSegment(Vector(10.6, -13.7, 0), Vector(12.7, -13.7, 0)), False)
sketch2.addGeometry(Part.ArcOfCircle(Part.Circle(Vector(12.7, -12.7, 0), Vector(0, 0, 1), 1), math.radians(-90), math.radians(0)), False)
sketch2.addGeometry(Part.LineSegment(Vector(13.7, -12.7, 0), Vector(13.7, -10.6, 0)), False)
sketch2.addGeometry(Part.ArcOfCircle(Part.Circle(Vector(12.7, -10.6, 0), Vector(0, 0, 1), 1), math.radians(0), math.radians(90)), False)
sketch2.addGeometry(Part.LineSegment(Vector(12.7, -9.6, 0), Vector(10.6, -9.6, 0)), False)
sketch2.addGeometry(Part.ArcOfCircle(Part.Circle(Vector(10.6, -10.6, 0), Vector(0, 0, 1), 1), math.radians(90), math.radians(180)), False)
sketch2.addGeometry(Part.LineSegment(Vector(9.6, -10.6, 0), Vector(9.6, -12.7, 0)), False)
sketch2.addGeometry(Part.ArcOfCircle(Part.Circle(Vector(10.6, -12.7, 0), Vector(0, 0, 1), 1), math.radians(-180), math.radians(-90)), False)
sketch2.addGeometry(Part.LineSegment(Vector(-13.7, -10.6, 0), Vector(-13.7, -12.7, 0)), False)
sketch2.addGeometry(Part.ArcOfCircle(Part.Circle(Vector(-12.7, -12.7, 0), Vector(0, 0, 1), 1), math.radians(-180), math.radians(-90)), False)
sketch2.addGeometry(Part.LineSegment(Vector(-12.7, -13.7, 0), Vector(-10.6, -13.7, 0)), False)
sketch2.addGeometry(Part.ArcOfCircle(Part.Circle(Vector(-10.6, -12.7, 0), Vector(0, 0, 1), 1), math.radians(-90), math.radians(0)), False)
sketch2.addGeometry(Part.LineSegment(Vector(-9.6, -12.7, 0), Vector(-9.6, -10.6, 0)), False)
sketch2.addGeometry(Part.ArcOfCircle(Part.Circle(Vector(-10.6, -10.6, 0), Vector(0, 0, 1), 1), math.radians(0), math.radians(90)), False)
sketch2.addGeometry(Part.LineSegment(Vector(-10.6, -9.6, 0), Vector(-12.7, -9.6, 0)), False)
sketch2.addGeometry(Part.ArcOfCircle(Part.Circle(Vector(-12.7, -10.6, 0), Vector(0, 0, 1), 1), math.radians(90), math.radians(180)), False)
sketch2.addConstraint(Sketcher.Constraint("Tangent", 0, 2, 1, 1))
sketch2.addConstraint(Sketcher.Constraint("Tangent", 1, 2, 2, 1))
sketch2.addConstraint(Sketcher.Constraint("Tangent", 2, 2, 3, 1))
sketch2.addConstraint(Sketcher.Constraint("Tangent", 3, 2, 4, 1))
sketch2.addConstraint(Sketcher.Constraint("Tangent", 4, 2, 5, 1))
sketch2.addConstraint(Sketcher.Constraint("Tangent", 5, 2, 6, 1))
sketch2.addConstraint(Sketcher.Constraint("Tangent", 6, 2, 7, 1))
sketch2.addConstraint(Sketcher.Constraint("Tangent", 7, 2, 0, 1))
sketch2.addConstraint(Sketcher.Constraint("Tangent", 8, 2, 9, 1))
sketch2.addConstraint(Sketcher.Constraint("Tangent", 9, 2, 10, 1))
sketch2.addConstraint(Sketcher.Constraint("Tangent", 10, 2, 11, 1))
sketch2.addConstraint(Sketcher.Constraint("Tangent", 11, 2, 12, 1))
sketch2.addConstraint(Sketcher.Constraint("Tangent", 12, 2, 13, 1))
sketch2.addConstraint(Sketcher.Constraint("Tangent", 13, 2, 14, 1))
sketch2.addConstraint(Sketcher.Constraint("Tangent", 14, 2, 15, 1))
sketch2.addConstraint(Sketcher.Constraint("Tangent", 15, 2, 8, 1))
sketch2.addConstraint(Sketcher.Constraint("Tangent", 16, 2, 17, 1))
sketch2.addConstraint(Sketcher.Constraint("Tangent", 17, 2, 18, 1))
sketch2.addConstraint(Sketcher.Constraint("Tangent", 18, 2, 19, 1))
sketch2.addConstraint(Sketcher.Constraint("Tangent", 19, 2, 20, 1))
sketch2.addConstraint(Sketcher.Constraint("Tangent", 20, 2, 21, 1))
sketch2.addConstraint(Sketcher.Constraint("Tangent", 21, 2, 22, 1))
sketch2.addConstraint(Sketcher.Constraint("Tangent", 22, 2, 23, 1))
sketch2.addConstraint(Sketcher.Constraint("Tangent", 23, 2, 16, 1))
sketch2.addConstraint(Sketcher.Constraint("Tangent", 24, 2, 25, 1))
sketch2.addConstraint(Sketcher.Constraint("Tangent", 25, 2, 26, 1))
sketch2.addConstraint(Sketcher.Constraint("Tangent", 26, 2, 27, 1))
sketch2.addConstraint(Sketcher.Constraint("Tangent", 27, 2, 28, 1))
sketch2.addConstraint(Sketcher.Constraint("Tangent", 28, 2, 29, 1))
sketch2.addConstraint(Sketcher.Constraint("Tangent", 29, 2, 30, 1))
sketch2.addConstraint(Sketcher.Constraint("Tangent", 30, 2, 31, 1))
sketch2.addConstraint(Sketcher.Constraint("Tangent", 31, 2, 24, 1))
sketch2.addConstraint(Sketcher.Constraint("Vertical", 0))
sketch2.addConstraint(Sketcher.Constraint("Horizontal", 2))
sketch2.addConstraint(Sketcher.Constraint("Vertical", 4))
sketch2.addConstraint(Sketcher.Constraint("Horizontal", 6))
sketch2.addConstraint(Sketcher.Constraint("Horizontal", 8))
sketch2.addConstraint(Sketcher.Constraint("Vertical", 10))
sketch2.addConstraint(Sketcher.Constraint("Horizontal", 12))
sketch2.addConstraint(Sketcher.Constraint("Vertical", 14))
sketch2.addConstraint(Sketcher.Constraint("Horizontal", 16))
sketch2.addConstraint(Sketcher.Constraint("Vertical", 18))
sketch2.addConstraint(Sketcher.Constraint("Horizontal", 20))
sketch2.addConstraint(Sketcher.Constraint("Vertical", 22))
sketch2.addConstraint(Sketcher.Constraint("Vertical", 24))
sketch2.addConstraint(Sketcher.Constraint("Horizontal", 26))
sketch2.addConstraint(Sketcher.Constraint("Vertical", 28))
sketch2.addConstraint(Sketcher.Constraint("Horizontal", 30))
sketch2.addConstraint(Sketcher.Constraint("Equal", 1, 3))
sketch2.addConstraint(Sketcher.Constraint("Equal", 3, 5))
sketch2.addConstraint(Sketcher.Constraint("Equal", 5, 7))
sketch2.addConstraint(Sketcher.Constraint("Equal", 7, 9))
sketch2.addConstraint(Sketcher.Constraint("Equal", 9, 11))
sketch2.addConstraint(Sketcher.Constraint("Equal", 11, 13))
sketch2.addConstraint(Sketcher.Constraint("Equal", 13, 15))
sketch2.addConstraint(Sketcher.Constraint("Equal", 15, 17))
sketch2.addConstraint(Sketcher.Constraint("Equal", 17, 19))
sketch2.addConstraint(Sketcher.Constraint("Equal", 19, 21))
sketch2.addConstraint(Sketcher.Constraint("Equal", 21, 23))
sketch2.addConstraint(Sketcher.Constraint("Equal", 23, 25))
sketch2.addConstraint(Sketcher.Constraint("Equal", 25, 27))
sketch2.addConstraint(Sketcher.Constraint("Equal", 27, 29))
sketch2.addConstraint(Sketcher.Constraint("Equal", 29, 31))
sketch2.addConstraint(Sketcher.Constraint("Symmetric", 9, 3, 17, 3, -1, 1))
sketch2.addConstraint(Sketcher.Constraint("Symmetric", 13, 3, 21, 3, -1, 1))
sketch2.addConstraint(Sketcher.Constraint("Symmetric", 1, 3, 25, 3, -1, 1))
sketch2.addConstraint(Sketcher.Constraint("Symmetric", 5, 3, 29, 3, -1, 1))
sketch2.addConstraint(Sketcher.Constraint("Symmetric", 1, 3, 9, 3, -2))
sketch2.addConstraint(Sketcher.Constraint("Symmetric", 5, 3, 13, 3, -2))
sketch2.addConstraint(Sketcher.Constraint("Equal", 30, 0))
sketch2.addConstraint(Sketcher.Constraint("Radius", 1, 1.0))
sketch2.addConstraint(Sketcher.Constraint("DistanceX", 2, 2, 2, 1, 2.15))
sketch2.addConstraint(Sketcher.Constraint("DistanceX", -1, 1, 1, 3, 12.7))
sketch2.addConstraint(Sketcher.Constraint("DistanceY", -1, 1, 1, 3, 12.7))
sketch2.setExpression("Constraints[70]", "Params.sketch2_radius")
sketch2.setExpression("Constraints[71]", "Params.sketch2_width")
pocket1 = doc.addObject("PartDesign::Pocket", "Pocket")
body.addObject(pocket1)
pocket1.Profile = sketch2
pocket1.Type = "ThroughAll"

doc.recompute()
